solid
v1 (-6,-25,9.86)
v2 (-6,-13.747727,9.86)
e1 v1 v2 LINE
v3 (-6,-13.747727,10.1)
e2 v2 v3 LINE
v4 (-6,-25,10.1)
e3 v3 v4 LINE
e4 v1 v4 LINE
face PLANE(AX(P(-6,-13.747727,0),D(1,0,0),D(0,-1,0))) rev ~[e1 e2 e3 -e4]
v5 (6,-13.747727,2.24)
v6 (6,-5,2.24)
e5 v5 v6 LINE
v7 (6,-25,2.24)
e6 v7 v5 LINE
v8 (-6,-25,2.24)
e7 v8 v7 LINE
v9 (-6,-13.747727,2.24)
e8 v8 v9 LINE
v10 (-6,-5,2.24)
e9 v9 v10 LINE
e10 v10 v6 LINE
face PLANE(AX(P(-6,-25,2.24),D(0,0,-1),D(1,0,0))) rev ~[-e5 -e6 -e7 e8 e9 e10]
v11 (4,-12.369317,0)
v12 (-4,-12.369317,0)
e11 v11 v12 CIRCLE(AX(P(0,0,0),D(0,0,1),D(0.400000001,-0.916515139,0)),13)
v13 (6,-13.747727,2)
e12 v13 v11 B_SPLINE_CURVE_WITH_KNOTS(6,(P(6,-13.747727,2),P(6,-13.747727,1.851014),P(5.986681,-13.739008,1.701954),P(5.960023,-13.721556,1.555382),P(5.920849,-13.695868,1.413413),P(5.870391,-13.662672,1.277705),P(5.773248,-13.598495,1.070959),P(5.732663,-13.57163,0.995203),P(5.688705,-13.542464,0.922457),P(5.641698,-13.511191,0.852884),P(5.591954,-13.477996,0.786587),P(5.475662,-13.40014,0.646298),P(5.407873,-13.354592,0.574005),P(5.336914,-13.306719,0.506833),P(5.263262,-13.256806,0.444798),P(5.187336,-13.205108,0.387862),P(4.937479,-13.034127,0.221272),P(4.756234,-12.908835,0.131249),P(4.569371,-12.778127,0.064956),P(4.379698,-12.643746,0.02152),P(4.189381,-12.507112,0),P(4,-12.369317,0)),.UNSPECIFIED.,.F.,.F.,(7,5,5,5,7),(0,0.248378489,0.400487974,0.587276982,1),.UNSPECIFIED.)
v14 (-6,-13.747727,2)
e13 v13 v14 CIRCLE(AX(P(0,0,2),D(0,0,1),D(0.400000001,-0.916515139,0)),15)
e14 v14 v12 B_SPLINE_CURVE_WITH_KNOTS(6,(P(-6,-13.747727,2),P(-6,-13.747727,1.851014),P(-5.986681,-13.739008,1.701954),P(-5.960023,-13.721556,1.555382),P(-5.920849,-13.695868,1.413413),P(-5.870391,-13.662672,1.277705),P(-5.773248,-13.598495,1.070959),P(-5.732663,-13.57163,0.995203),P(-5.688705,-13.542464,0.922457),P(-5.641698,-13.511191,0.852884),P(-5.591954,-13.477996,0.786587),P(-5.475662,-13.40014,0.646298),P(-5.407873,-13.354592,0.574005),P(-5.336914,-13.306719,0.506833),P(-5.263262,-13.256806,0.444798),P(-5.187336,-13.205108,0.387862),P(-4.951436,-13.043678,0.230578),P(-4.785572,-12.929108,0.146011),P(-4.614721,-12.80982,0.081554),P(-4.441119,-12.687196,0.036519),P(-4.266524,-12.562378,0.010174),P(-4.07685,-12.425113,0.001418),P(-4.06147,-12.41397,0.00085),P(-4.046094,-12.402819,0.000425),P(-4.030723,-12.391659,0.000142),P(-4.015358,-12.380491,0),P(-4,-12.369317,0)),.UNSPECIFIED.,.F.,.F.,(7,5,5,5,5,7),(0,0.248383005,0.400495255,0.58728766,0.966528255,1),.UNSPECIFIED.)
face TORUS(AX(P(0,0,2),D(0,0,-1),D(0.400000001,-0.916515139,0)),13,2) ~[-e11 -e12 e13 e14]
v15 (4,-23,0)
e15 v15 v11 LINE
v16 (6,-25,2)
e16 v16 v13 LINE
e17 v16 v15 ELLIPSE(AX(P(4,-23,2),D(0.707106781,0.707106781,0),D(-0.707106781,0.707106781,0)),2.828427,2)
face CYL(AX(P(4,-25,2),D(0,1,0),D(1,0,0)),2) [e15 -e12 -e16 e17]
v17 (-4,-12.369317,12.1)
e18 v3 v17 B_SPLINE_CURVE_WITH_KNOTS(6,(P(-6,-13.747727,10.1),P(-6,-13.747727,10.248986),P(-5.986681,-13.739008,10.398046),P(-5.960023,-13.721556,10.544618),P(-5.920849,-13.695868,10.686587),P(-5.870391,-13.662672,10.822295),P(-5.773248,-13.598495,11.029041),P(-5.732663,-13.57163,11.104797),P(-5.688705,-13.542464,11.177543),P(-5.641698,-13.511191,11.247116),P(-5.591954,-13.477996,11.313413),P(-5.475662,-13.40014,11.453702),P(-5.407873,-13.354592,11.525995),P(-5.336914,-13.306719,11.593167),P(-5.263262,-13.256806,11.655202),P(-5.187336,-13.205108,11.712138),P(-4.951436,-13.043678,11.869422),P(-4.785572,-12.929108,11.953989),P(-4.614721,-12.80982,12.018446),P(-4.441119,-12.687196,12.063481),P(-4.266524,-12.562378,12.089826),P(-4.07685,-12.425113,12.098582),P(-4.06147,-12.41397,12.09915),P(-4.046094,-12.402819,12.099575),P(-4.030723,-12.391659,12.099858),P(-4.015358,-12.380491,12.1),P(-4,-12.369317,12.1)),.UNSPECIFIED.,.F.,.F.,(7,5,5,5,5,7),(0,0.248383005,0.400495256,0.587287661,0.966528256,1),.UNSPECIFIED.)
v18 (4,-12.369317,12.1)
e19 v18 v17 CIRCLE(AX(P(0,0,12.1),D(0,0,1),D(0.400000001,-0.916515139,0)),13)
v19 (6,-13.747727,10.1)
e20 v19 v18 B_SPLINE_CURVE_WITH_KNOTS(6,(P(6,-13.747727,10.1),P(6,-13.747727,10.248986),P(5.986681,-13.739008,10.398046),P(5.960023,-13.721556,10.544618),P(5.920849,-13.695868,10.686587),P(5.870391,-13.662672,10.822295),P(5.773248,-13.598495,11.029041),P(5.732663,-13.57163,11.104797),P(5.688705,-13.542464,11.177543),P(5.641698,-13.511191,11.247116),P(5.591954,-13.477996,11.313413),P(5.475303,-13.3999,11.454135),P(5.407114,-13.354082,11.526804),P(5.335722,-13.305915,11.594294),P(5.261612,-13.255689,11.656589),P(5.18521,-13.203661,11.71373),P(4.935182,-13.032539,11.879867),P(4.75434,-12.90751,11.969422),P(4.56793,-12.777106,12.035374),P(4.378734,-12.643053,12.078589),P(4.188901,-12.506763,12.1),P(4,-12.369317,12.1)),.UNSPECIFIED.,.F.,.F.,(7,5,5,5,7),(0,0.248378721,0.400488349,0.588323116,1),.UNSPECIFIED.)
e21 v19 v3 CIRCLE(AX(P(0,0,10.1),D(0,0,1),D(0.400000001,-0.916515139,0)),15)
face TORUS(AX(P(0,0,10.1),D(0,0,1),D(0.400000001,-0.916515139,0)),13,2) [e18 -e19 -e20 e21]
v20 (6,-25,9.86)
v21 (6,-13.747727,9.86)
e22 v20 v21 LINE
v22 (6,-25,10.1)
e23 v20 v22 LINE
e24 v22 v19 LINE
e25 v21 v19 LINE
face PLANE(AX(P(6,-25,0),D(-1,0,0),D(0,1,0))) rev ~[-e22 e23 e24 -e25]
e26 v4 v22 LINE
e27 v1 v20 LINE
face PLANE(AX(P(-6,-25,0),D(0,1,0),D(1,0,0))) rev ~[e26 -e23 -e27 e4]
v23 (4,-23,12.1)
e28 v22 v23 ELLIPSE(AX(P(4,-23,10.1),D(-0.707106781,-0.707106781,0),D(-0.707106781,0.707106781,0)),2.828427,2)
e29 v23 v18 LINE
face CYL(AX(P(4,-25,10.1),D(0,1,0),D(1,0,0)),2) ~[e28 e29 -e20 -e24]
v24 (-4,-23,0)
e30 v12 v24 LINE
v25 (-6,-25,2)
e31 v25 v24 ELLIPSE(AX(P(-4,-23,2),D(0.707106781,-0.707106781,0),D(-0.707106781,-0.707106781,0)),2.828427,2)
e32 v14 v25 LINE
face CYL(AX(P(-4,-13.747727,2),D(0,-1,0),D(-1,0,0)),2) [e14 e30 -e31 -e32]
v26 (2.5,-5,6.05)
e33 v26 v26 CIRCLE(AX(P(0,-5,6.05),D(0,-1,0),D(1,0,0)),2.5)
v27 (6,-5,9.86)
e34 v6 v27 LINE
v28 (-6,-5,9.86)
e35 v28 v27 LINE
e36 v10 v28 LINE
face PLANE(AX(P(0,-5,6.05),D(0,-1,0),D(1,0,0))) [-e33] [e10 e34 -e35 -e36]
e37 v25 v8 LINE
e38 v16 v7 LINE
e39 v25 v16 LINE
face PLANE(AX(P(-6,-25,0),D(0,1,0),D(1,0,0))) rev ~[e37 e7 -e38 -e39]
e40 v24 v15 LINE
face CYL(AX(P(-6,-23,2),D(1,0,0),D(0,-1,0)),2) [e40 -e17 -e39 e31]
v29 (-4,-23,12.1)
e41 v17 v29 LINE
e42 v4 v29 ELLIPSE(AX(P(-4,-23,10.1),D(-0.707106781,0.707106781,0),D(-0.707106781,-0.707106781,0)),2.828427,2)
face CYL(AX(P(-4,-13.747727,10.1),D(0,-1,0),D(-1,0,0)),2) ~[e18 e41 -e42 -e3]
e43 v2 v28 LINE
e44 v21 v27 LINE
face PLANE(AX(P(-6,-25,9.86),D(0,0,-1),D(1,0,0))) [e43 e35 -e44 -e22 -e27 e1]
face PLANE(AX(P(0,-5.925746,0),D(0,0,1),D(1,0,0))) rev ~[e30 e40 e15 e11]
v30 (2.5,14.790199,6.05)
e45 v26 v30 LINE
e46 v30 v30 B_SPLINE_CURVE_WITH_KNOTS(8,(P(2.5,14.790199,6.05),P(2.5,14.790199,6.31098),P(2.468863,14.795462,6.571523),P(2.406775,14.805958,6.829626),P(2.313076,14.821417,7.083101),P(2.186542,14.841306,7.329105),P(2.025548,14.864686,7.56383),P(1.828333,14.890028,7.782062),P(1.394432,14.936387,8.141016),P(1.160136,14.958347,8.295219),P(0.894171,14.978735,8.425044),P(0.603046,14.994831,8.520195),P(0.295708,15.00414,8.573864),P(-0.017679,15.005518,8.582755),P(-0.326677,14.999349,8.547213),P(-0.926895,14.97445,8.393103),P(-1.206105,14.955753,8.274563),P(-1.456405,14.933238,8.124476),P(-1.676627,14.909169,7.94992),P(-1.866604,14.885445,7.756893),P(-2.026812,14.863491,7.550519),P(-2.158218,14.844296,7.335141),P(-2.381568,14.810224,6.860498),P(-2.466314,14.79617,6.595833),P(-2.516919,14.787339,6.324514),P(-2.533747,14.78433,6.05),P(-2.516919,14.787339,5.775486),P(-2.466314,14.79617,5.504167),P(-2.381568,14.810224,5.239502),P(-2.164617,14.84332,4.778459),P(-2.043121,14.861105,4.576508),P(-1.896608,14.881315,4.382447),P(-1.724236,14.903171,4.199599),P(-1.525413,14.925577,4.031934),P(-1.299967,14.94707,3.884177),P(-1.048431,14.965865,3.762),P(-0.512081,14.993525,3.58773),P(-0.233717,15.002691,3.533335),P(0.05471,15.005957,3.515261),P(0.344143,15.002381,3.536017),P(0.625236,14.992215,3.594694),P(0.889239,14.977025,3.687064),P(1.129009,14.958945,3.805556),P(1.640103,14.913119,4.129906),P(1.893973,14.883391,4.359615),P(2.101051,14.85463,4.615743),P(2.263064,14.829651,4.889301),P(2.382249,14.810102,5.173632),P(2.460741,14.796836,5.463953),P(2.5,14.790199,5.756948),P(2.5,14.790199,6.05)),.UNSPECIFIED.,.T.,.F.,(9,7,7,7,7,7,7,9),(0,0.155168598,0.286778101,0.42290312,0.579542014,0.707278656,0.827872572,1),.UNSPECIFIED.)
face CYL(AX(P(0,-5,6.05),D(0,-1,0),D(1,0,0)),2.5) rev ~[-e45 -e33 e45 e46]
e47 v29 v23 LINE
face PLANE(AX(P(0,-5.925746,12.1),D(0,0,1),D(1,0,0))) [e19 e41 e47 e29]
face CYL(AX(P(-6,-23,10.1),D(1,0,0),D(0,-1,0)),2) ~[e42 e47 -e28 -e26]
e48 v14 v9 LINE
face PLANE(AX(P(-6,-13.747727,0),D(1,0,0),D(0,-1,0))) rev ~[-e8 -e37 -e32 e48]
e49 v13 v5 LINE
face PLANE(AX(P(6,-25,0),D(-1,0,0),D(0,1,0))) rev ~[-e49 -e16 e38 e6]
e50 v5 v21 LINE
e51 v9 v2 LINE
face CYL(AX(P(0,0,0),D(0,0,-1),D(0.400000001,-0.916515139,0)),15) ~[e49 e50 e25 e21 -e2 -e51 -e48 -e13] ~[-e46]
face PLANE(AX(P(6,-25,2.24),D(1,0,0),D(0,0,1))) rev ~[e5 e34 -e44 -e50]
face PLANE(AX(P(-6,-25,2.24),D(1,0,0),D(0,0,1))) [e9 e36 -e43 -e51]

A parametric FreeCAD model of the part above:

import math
import FreeCAD as App
import Part
import Sketcher

V = App.Vector
Q = App.Units.Quantity


def edges_at(feature, points):
    """Names of the edges that pass closest to the given points."""
    edges = feature.Shape.Edges
    near = lambda p: min(range(len(edges)), key=lambda i: edges[i].distToShape(Part.Vertex(*p))[0])
    return sorted({f"Edge{near(p) + 1}" for p in points})


def add_polygon(sketch, points):
    """Adds a closed chain of lines whose ends are joined by coincident constraints."""
    first, n = sketch.GeometryCount, len(points)
    for a, b in zip(points, points[1:] + points[:1]):
        sketch.addGeometry(Part.LineSegment(App.Vector(*a, 0), App.Vector(*b, 0)), False)
    for i in range(n):
        sketch.addConstraint(Sketcher.Constraint("Coincident", first + i, 2, first + (i + 1) % n, 1))

doc = App.newDocument("Part")
body = doc.addObject("PartDesign::Body", "Body")

# Sketch on XY plane
sketch1 = doc.addObject("Sketcher::SketchObject", "Sketch")
body.addObject(sketch1)
sketch1.AttachmentSupport = (doc.XY_Plane, [""])
sketch1.MapMode = "FlatFace"
sketch1.addGeometry(Part.LineSegment(V(6, -25, 0), V(6, -13.747727, 0)), False)
sketch1.addGeometry(Part.ArcOfCircle(Part.Circle(V(0, 0, 0), V(0, 0, 1), 15), math.radians(-66.421821), math.radians(246.421821)), False)
sketch1.addGeometry(Part.LineSegment(V(-6, -13.747727, 0), V(-6, -25, 0)), False)
sketch1.addGeometry(Part.LineSegment(V(-6, -25, 0), V(6, -25, 0)), False)
sketch1.addConstraint(Sketcher.Constraint("Coincident", 0, 2, 1, 1))
sketch1.addConstraint(Sketcher.Constraint("Coincident", 1, 2, 2, 1))
sketch1.addConstraint(Sketcher.Constraint("Coincident", 2, 2, 3, 1))
sketch1.addConstraint(Sketcher.Constraint("Coincident", 3, 2, 0, 1))
sketch1.addConstraint(Sketcher.Constraint("Vertical", 0))
sketch1.addConstraint(Sketcher.Constraint("Vertical", 2))
sketch1.addConstraint(Sketcher.Constraint("Horizontal", 3))
sketch1.addConstraint(Sketcher.Constraint("Coincident", 1, 3, -1, 1))
sketch1.addConstraint(Sketcher.Constraint("Horizontal", 0, 2, 1, 2))
sketch1.addConstraint(Sketcher.Constraint("Radius", 1, Q("15 mm")))
sketch1.addConstraint(Sketcher.Constraint("DistanceX", 3, 1, 3, 2, Q("12 mm")))
sketch1.addConstraint(Sketcher.Constraint("DistanceY", 2, 2, -1, 1, Q("25 mm")))
pad1 = doc.addObject("PartDesign::Pad", "Pad")
body.addObject(pad1)
pad1.Profile = sketch1
pad1.Length = 12.1
doc.recompute()

fillet = doc.addObject("PartDesign::Fillet", "Fillet")
body.addObject(fillet)
fillet.Base = (pad1, edges_at(pad1, [
    (0, 15, 12.1),
    (6, -19.374, 12.1),
    (-6, -19.374, 12.1),
    (0, -25, 12.1),
    (0, 15, 0),
    (6, -19.374, 0),
    (-6, -19.374, 0),
    (0, -25, 0),
]))
fillet.Radius = 2

# Sketch on XZ plane
sketch2 = doc.addObject("Sketcher::SketchObject", "Sketch001")
body.addObject(sketch2)
sketch2.AttachmentSupport = (doc.XZ_Plane, [""])
sketch2.MapMode = "FlatFace"
sketch2.AttachmentOffset = App.Placement(V(0, 0, 25), App.Rotation())
add_polygon(sketch2, [(-6, 9.86), (-6, 2.24), (6, 2.24), (6, 9.86)])  # lines 0-3
sketch2.addConstraint(Sketcher.Constraint("Vertical", 0))
sketch2.addConstraint(Sketcher.Constraint("Horizontal", 1))
sketch2.addConstraint(Sketcher.Constraint("Vertical", 2))
sketch2.addConstraint(Sketcher.Constraint("Horizontal", 3))
sketch2.addConstraint(Sketcher.Constraint("DistanceX", 1, 1, 1, 2, Q("12 mm")))
sketch2.addConstraint(Sketcher.Constraint("DistanceX", 0, 2, -1, 1, Q("6 mm")))
sketch2.addConstraint(Sketcher.Constraint("DistanceY", 0, 2, 0, 1, Q("7.62 mm")))
sketch2.addConstraint(Sketcher.Constraint("DistanceY", -1, 1, 0, 2, Q("2.24 mm")))
pocket1 = doc.addObject("PartDesign::Pocket", "Pocket")
body.addObject(pocket1)
pocket1.Profile = sketch2
pocket1.Length = 20

# Sketch on XZ plane
sketch3 = doc.addObject("Sketcher::SketchObject", "Sketch002")
body.addObject(sketch3)
sketch3.AttachmentSupport = (doc.XZ_Plane, [""])
sketch3.MapMode = "FlatFace"
sketch3.AttachmentOffset = App.Placement(V(0, 0, 5), App.Rotation())
sketch3.addGeometry(Part.Circle(V(0, 6.05, 0), V(0, 0, 1), 2.5), False)
sketch3.addConstraint(Sketcher.Constraint("PointOnObject", 0, 3, -2))
sketch3.addConstraint(Sketcher.Constraint("Diameter", 0, Q("5 mm")))
sketch3.addConstraint(Sketcher.Constraint("DistanceY", -1, 1, 0, 3, Q("6.05 mm")))
pocket2 = doc.addObject("PartDesign::Pocket", "Pocket001")
body.addObject(pocket2)
pocket2.Profile = sketch3
pocket2.Length = 33.782

doc.recompute()
